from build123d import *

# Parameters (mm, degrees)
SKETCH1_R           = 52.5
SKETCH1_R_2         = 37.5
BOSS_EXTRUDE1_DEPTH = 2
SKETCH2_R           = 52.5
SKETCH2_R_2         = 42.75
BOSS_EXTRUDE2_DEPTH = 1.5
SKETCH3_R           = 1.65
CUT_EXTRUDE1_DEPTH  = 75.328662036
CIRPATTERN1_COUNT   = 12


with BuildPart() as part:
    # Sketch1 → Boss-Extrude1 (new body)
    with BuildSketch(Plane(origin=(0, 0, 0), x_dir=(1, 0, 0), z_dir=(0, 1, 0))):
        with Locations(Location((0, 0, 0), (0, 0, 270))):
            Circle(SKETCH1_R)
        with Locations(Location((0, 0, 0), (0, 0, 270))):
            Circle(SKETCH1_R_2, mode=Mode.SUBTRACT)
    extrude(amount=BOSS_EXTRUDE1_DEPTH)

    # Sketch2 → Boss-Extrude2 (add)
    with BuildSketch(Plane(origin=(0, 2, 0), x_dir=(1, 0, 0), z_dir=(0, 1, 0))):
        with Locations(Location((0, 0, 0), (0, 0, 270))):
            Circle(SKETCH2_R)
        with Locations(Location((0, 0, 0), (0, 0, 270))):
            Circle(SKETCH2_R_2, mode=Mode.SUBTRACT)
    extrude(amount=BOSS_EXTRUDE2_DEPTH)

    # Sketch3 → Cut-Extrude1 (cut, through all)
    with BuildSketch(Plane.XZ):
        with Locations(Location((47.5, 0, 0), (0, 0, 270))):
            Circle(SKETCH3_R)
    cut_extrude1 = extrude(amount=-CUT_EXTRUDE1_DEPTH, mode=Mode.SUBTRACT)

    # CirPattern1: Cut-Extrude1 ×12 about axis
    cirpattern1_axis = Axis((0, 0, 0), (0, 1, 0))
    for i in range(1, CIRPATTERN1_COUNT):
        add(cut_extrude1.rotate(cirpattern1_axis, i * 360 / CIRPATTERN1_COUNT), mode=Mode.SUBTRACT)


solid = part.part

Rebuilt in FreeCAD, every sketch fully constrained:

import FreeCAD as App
import Part
import Sketcher
from FreeCAD import Vector
Q = App.Units.Quantity

doc = App.newDocument("Part")
params = doc.addObject("Spreadsheet::Sheet", "Params")
for row, (alias, value) in enumerate([
    ("sketch1_diameter", "105 mm"),
    ("sketch1_diameter2", "75 mm"),
    ("pad1_length", "2 mm"),
    ("sketch2_diameter", "105 mm"),
    ("sketch2_diameter2", "85.5 mm"),
    ("pad2_length", "1.5 mm"),
    ("sketch3_diameter", "3.3 mm"),
], start=1):
    params.set(f"A{row}", alias)
    params.set(f"B{row}", "=" + value)
    params.setAlias(f"B{row}", alias)

body = doc.addObject("PartDesign::Body", "Body")

sketch1 = doc.addObject("Sketcher::SketchObject", "Sketch")
body.addObject(sketch1)
sketch1.AttachmentSupport = (doc.XZ_Plane, [""])
sketch1.MapMode = "FlatFace"
sketch1.addGeometry([
    Part.Circle(Vector(0, 0, 0), Vector(0, 0, 1), 52.5),
    Part.Circle(Vector(0, 0, 0), Vector(0, 0, 1), 37.5),
], False)
sketch1.addConstraint([
    Sketcher.Constraint("Coincident", 0, 3, -1, 1),
    Sketcher.Constraint("Coincident", 1, 3, -1, 1),
    Sketcher.Constraint("Diameter", 0, Q("105 mm")),
    Sketcher.Constraint("Diameter", 1, Q("75 mm")),
])
sketch1.setExpression("Constraints[2]", "Params.sketch1_diameter")
sketch1.setExpression("Constraints[3]", "Params.sketch1_diameter2")
pad1 = doc.addObject("PartDesign::Pad", "Pad")
body.addObject(pad1)
pad1.Profile = sketch1
pad1.setExpression("Length", "Params.pad1_length")
pad1.Reversed = True

sketch2 = doc.addObject("Sketcher::SketchObject", "Sketch001")
body.addObject(sketch2)
sketch2.AttachmentSupport = (doc.XZ_Plane, [""])
sketch2.MapMode = "FlatFace"
sketch2.AttachmentOffset = App.Placement(Vector(0, 0, -2), App.Rotation())
sketch2.addGeometry([
    Part.Circle(Vector(0, 0, 0), Vector(0, 0, 1), 52.5),
    Part.Circle(Vector(0, 0, 0), Vector(0, 0, 1), 42.75),
], False)
sketch2.addConstraint([
    Sketcher.Constraint("Coincident", 0, 3, -1, 1),
    Sketcher.Constraint("Coincident", 1, 3, -1, 1),
    Sketcher.Constraint("Diameter", 0, Q("105 mm")),
    Sketcher.Constraint("Diameter", 1, Q("85.5 mm")),
])
sketch2.setExpression("Constraints[2]", "Params.sketch2_diameter")
sketch2.setExpression("Constraints[3]", "Params.sketch2_diameter2")
pad2 = doc.addObject("PartDesign::Pad", "Pad001")
body.addObject(pad2)
pad2.Profile = sketch2
pad2.setExpression("Length", "Params.pad2_length")
pad2.Reversed = True

sketch3 = doc.addObject("Sketcher::SketchObject", "Sketch002")
body.addObject(sketch3)
sketch3.AttachmentSupport = (doc.XZ_Plane, [""])
sketch3.MapMode = "FlatFace"
sketch3.addGeometry(Part.Circle(Vector(47.5, 0, 0), Vector(0, 0, 1), 1.65), False)
sketch3.addConstraint([
    Sketcher.Constraint("PointOnObject", 0, 3, -1),
    Sketcher.Constraint("Diameter", 0, Q("3.3 mm")),
    Sketcher.Constraint("DistanceX", -1, 1, 0, 3, Q("47.5 mm")),
])
sketch3.setExpression("Constraints[1]", "Params.sketch3_diameter")
pocket1 = doc.addObject("PartDesign::Pocket", "Pocket")
body.addObject(pocket1)
pocket1.Profile = sketch3
pocket1.Type = "ThroughAll"
doc.recompute()

polarpattern = doc.addObject("PartDesign::PolarPattern", "PolarPattern")
body.addObject(polarpattern)
polarpattern.Originals = [pocket1]
polarpattern.Axis = (doc.Y_Axis, [""])
polarpattern.Angle = 360
polarpattern.Occurrences = 12
body.Tip = polarpattern

doc.recompute()
